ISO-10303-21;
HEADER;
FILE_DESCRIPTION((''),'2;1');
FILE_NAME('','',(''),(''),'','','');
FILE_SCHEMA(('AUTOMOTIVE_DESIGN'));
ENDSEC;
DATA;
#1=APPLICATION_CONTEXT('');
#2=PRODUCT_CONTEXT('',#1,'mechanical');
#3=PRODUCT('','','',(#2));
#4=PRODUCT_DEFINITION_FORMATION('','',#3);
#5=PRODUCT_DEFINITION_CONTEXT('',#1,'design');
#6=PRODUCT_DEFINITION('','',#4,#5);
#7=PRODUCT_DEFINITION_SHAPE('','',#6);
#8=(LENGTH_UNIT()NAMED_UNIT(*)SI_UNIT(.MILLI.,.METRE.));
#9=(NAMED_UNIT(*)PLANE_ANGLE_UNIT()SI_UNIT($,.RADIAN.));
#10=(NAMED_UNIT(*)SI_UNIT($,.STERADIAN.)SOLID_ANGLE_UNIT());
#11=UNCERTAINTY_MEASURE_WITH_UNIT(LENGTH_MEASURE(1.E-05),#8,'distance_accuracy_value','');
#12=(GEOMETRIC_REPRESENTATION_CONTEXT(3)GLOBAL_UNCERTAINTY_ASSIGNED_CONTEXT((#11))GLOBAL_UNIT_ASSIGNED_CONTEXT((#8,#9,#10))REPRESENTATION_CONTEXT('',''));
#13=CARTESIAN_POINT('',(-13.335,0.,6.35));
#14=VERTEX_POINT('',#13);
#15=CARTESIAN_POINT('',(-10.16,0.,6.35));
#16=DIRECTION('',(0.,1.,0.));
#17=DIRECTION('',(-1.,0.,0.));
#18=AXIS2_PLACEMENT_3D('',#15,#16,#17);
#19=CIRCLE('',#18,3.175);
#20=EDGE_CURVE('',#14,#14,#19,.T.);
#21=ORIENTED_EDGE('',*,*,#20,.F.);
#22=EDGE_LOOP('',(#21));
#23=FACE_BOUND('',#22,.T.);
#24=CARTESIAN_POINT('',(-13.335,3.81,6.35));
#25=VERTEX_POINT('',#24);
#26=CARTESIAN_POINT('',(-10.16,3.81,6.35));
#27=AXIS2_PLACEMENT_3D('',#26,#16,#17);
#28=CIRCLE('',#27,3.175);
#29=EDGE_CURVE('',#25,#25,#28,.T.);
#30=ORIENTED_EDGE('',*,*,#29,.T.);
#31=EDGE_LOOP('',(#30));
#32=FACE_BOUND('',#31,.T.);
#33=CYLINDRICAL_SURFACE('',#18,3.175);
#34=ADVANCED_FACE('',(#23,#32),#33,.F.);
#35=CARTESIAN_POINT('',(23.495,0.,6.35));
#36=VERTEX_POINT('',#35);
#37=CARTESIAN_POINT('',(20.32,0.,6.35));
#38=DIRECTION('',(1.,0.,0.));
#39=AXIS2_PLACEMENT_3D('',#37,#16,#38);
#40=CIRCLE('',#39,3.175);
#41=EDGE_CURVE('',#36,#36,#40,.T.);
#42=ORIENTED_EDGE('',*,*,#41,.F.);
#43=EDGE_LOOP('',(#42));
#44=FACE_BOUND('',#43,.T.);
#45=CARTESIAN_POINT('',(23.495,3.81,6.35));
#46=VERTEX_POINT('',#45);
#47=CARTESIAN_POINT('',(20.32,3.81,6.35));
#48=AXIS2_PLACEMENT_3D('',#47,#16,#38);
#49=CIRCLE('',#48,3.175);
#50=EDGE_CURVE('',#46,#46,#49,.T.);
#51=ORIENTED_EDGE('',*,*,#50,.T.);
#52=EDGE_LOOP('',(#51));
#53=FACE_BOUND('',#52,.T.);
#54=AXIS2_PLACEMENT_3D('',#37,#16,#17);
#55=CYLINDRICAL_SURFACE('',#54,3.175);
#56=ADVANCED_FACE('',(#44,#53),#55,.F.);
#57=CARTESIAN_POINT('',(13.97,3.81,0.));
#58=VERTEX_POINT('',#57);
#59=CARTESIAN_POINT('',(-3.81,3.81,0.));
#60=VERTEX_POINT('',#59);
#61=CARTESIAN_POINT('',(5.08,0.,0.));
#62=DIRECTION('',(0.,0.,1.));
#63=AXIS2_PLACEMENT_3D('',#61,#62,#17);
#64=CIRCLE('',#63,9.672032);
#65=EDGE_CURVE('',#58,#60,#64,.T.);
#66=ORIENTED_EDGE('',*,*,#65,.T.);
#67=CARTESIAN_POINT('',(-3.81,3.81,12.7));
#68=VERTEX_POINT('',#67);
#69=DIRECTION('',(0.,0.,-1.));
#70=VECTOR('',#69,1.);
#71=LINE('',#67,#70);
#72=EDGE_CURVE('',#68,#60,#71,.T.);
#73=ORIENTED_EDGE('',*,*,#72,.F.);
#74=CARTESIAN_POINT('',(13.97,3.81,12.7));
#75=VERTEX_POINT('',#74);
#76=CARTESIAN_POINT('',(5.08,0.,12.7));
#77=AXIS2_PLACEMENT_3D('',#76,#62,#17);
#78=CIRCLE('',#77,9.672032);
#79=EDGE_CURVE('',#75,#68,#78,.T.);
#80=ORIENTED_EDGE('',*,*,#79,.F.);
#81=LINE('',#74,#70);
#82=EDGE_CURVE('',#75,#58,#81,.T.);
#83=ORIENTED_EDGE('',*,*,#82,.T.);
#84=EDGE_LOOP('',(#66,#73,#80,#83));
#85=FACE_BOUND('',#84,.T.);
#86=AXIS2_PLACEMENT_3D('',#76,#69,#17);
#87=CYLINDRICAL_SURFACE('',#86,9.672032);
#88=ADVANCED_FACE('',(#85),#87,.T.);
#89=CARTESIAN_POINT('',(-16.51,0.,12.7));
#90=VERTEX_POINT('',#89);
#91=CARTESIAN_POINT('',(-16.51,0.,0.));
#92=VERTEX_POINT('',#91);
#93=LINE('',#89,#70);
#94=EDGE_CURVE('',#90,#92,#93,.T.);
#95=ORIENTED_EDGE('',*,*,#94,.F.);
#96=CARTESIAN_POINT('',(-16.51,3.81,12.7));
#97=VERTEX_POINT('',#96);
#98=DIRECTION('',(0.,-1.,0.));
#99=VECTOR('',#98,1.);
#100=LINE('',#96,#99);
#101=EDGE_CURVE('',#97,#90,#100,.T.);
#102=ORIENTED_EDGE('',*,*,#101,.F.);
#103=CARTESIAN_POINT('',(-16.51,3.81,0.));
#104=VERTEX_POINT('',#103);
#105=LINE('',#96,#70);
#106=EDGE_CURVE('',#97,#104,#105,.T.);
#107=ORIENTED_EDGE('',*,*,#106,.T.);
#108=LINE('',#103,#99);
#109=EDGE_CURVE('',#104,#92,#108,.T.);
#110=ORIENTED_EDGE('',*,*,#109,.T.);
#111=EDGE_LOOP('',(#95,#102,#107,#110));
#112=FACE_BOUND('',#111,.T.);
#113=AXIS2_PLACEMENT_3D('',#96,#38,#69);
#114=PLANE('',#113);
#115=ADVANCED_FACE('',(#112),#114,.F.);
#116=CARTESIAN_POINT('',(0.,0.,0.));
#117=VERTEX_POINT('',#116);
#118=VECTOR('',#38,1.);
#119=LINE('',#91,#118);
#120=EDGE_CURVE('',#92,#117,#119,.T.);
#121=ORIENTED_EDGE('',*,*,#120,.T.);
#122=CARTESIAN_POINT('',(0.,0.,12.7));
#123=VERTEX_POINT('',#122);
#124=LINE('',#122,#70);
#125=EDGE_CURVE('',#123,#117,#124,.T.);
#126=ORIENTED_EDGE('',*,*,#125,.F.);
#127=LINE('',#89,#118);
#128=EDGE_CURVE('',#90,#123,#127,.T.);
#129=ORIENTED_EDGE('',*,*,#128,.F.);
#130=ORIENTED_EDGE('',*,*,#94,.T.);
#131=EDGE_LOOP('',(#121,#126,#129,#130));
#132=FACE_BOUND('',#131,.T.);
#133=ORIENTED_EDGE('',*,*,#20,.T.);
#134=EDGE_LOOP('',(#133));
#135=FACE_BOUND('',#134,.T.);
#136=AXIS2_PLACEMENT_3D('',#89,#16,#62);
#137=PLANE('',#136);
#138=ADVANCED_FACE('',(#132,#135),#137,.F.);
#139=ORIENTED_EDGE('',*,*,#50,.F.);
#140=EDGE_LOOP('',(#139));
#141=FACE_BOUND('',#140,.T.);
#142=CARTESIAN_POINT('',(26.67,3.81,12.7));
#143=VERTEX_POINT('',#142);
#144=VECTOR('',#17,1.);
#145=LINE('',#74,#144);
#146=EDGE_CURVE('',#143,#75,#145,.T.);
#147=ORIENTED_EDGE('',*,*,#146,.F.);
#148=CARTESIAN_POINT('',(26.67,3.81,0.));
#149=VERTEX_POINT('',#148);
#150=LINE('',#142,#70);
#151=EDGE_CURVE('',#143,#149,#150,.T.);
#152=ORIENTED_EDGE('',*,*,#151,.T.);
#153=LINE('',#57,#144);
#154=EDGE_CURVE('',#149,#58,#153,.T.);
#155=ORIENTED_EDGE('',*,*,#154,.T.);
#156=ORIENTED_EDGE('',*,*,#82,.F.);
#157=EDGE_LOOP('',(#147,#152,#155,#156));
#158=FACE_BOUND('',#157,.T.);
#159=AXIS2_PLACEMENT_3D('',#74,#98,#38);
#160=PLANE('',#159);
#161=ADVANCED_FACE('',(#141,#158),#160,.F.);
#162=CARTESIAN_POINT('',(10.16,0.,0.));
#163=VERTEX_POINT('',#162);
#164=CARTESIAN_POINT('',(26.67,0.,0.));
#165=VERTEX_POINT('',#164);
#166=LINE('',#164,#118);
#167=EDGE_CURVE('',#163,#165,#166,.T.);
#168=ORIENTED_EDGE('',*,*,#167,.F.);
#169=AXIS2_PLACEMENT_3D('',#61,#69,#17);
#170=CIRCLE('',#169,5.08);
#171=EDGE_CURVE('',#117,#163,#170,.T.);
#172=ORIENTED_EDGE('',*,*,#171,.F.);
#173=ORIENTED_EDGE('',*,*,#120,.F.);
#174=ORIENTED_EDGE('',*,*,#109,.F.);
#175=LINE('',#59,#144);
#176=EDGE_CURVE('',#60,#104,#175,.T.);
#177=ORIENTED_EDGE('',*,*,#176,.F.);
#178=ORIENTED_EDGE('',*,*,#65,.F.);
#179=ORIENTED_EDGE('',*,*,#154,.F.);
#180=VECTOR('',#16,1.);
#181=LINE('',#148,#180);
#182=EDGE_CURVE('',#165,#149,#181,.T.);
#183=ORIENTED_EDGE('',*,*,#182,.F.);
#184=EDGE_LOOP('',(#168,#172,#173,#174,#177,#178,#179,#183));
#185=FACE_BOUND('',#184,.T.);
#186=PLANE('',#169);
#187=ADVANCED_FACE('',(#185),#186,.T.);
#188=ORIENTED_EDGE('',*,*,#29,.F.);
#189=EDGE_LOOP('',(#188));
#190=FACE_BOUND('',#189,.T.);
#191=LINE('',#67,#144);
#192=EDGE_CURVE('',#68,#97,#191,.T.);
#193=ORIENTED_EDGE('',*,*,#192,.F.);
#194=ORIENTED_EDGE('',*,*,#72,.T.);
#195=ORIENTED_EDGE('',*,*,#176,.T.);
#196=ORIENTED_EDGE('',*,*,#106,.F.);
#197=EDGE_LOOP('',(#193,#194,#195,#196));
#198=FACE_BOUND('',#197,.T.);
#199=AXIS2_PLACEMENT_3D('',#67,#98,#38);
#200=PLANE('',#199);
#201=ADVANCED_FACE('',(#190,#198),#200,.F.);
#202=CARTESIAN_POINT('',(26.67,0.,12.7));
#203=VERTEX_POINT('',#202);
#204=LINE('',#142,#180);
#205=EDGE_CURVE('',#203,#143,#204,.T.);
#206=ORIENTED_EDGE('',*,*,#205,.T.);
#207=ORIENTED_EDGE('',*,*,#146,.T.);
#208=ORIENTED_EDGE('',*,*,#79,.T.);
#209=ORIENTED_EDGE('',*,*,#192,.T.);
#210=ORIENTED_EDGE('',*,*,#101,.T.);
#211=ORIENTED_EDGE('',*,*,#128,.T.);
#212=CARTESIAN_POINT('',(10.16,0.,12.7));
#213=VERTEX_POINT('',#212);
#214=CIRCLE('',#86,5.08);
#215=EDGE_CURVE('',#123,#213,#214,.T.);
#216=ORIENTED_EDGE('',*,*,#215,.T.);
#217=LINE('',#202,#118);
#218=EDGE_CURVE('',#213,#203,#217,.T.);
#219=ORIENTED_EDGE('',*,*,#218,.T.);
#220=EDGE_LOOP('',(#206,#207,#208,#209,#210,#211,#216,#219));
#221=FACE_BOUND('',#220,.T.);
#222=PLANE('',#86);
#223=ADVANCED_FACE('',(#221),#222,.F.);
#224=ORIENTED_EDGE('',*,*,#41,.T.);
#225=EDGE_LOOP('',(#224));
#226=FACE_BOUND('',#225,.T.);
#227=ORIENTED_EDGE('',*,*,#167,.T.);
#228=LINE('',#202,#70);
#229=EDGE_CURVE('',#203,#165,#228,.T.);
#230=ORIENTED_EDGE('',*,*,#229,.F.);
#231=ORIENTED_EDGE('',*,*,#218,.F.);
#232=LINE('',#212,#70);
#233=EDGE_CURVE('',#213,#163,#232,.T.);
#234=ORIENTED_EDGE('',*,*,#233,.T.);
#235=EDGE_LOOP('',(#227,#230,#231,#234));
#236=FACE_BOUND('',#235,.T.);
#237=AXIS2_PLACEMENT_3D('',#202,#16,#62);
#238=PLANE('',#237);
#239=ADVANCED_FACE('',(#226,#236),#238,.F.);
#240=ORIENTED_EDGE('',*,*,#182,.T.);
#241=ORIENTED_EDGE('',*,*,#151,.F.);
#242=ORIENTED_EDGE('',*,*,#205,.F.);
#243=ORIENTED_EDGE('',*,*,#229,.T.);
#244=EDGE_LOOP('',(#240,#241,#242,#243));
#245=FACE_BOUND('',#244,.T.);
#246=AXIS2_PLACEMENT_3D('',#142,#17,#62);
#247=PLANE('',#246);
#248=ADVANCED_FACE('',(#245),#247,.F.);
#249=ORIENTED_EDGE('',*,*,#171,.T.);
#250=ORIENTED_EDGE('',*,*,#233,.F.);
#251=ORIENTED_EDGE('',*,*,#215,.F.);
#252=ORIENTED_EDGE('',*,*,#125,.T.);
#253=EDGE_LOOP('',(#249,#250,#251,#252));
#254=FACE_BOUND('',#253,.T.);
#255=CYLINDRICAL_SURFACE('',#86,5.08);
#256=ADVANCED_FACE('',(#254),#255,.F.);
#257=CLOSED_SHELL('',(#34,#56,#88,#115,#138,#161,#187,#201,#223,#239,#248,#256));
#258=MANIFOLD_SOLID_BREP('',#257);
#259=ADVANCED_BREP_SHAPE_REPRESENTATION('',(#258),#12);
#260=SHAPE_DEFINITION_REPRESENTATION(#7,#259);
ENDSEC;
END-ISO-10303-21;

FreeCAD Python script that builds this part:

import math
import FreeCAD as App
import Part
import Sketcher
from FreeCAD import Vector
Q = App.Units.Quantity

doc = App.newDocument("Part")
body = doc.addObject("PartDesign::Body", "Body")

# Sketch on XY plane
sketch1 = body.newObject("Sketcher::SketchObject", "Sketch")
sketch1.AttachmentSupport = (doc.getObject("XY_Plane"), [""])
sketch1.MapMode = "FlatFace"
sketch1.addGeometry(Part.LineSegment(Vector(-3.81, 3.81, 0), Vector(-16.51, 3.81, 0)), False)
sketch1.addGeometry(Part.LineSegment(Vector(-16.51, 3.81, 0), Vector(-16.51, 0, 0)), False)
sketch1.addGeometry(Part.LineSegment(Vector(-16.51, 0, 0), Vector(0, 0, 0)), False)
sketch1.addGeometry(Part.ArcOfCircle(Part.Circle(Vector(5.08, 0, 0), Vector(0, 0, 1), 5.08), math.radians(0), math.radians(180)), False)
sketch1.addGeometry(Part.LineSegment(Vector(10.16, 0, 0), Vector(26.67, 0, 0)), False)
sketch1.addGeometry(Part.LineSegment(Vector(26.67, 0, 0), Vector(26.67, 3.81, 0)), False)
sketch1.addGeometry(Part.LineSegment(Vector(26.67, 3.81, 0), Vector(13.97, 3.81, 0)), False)
sketch1.addGeometry(Part.ArcOfCircle(Part.Circle(Vector(5.08, 0, 0), Vector(0, 0, 1), 9.672032), math.radians(23.198591), math.radians(156.801409)), False)
sketch1.addConstraint(Sketcher.Constraint("Coincident", 0, 2, 1, 1))
sketch1.addConstraint(Sketcher.Constraint("Coincident", 1, 2, 2, 1))
sketch1.addConstraint(Sketcher.Constraint("Coincident", 2, 2, 3, 2))
sketch1.addConstraint(Sketcher.Constraint("Coincident", 3, 1, 4, 1))
sketch1.addConstraint(Sketcher.Constraint("Coincident", 4, 2, 5, 1))
sketch1.addConstraint(Sketcher.Constraint("Coincident", 5, 2, 6, 1))
sketch1.addConstraint(Sketcher.Constraint("Coincident", 6, 2, 7, 1))
sketch1.addConstraint(Sketcher.Constraint("Coincident", 7, 2, 0, 1))
sketch1.addConstraint(Sketcher.Constraint("Horizontal", 0))
sketch1.addConstraint(Sketcher.Constraint("Vertical", 1))
sketch1.addConstraint(Sketcher.Constraint("Horizontal", 2))
sketch1.addConstraint(Sketcher.Constraint("Horizontal", 4))
sketch1.addConstraint(Sketcher.Constraint("Vertical", 5))
sketch1.addConstraint(Sketcher.Constraint("Horizontal", 6))
sketch1.addConstraint(Sketcher.Constraint("Coincident", 2, 2, -1, 1))
sketch1.addConstraint(Sketcher.Constraint("Coincident", 7, 3, 3, 3))
sketch1.addConstraint(Sketcher.Constraint("PointOnObject", 3, 3, -1))
sketch1.addConstraint(Sketcher.Constraint("PointOnObject", 3, 1, -1))
sketch1.addConstraint(Sketcher.Constraint("Horizontal", 0, 2, 5, 2))
sketch1.addConstraint(Sketcher.Constraint("Equal", 2, 4))
sketch1.addConstraint(Sketcher.Constraint("Radius", 3, Q("0.2 in")))
sketch1.addConstraint(Sketcher.Constraint("DistanceX", 0, 2, 0, 1, Q("0.5 in")))
sketch1.addConstraint(Sketcher.Constraint("DistanceX", 2, 1, 2, 2, Q("0.65 in")))
sketch1.addConstraint(Sketcher.Constraint("DistanceY", 1, 2, 1, 1, Q("0.15 in")))
pad1 = body.newObject("PartDesign::Pad", "Pad")
pad1.Profile = sketch1
pad1.Length = Q("0.5 in")

# Sketch on XZ plane
sketch2 = body.newObject("Sketcher::SketchObject", "Sketch001")
sketch2.AttachmentSupport = (doc.getObject("XZ_Plane"), [""])
sketch2.MapMode = "FlatFace"
sketch2.AttachmentOffset = App.Placement(Vector(0, 0, -0.15 * 25.4), App.Rotation())
sketch2.addGeometry(Part.Circle(Vector(-10.16, 6.35, 0), Vector(0, 0, 1), 3.175), False)
sketch2.addGeometry(Part.Circle(Vector(20.32, 6.35, 0), Vector(0, 0, 1), 3.175), False)
sketch2.addConstraint(Sketcher.Constraint("Equal", 0, 1))
sketch2.addConstraint(Sketcher.Constraint("Horizontal", 0, 3, 1, 3))
sketch2.addConstraint(Sketcher.Constraint("Diameter", 0, Q("0.25 in")))
sketch2.addConstraint(Sketcher.Constraint("DistanceX", 0, 3, -1, 1, Q("0.4 in")))
sketch2.addConstraint(Sketcher.Constraint("DistanceX", -1, 1, 1, 3, Q("0.8 in")))
sketch2.addConstraint(Sketcher.Constraint("DistanceY", -1, 1, 0, 3, Q("0.25 in")))
pocket1 = body.newObject("PartDesign::Pocket", "Pocket")
pocket1.Profile = sketch2
pocket1.Type = "ThroughAll"
pocket1.Reversed = True

doc.recompute()
